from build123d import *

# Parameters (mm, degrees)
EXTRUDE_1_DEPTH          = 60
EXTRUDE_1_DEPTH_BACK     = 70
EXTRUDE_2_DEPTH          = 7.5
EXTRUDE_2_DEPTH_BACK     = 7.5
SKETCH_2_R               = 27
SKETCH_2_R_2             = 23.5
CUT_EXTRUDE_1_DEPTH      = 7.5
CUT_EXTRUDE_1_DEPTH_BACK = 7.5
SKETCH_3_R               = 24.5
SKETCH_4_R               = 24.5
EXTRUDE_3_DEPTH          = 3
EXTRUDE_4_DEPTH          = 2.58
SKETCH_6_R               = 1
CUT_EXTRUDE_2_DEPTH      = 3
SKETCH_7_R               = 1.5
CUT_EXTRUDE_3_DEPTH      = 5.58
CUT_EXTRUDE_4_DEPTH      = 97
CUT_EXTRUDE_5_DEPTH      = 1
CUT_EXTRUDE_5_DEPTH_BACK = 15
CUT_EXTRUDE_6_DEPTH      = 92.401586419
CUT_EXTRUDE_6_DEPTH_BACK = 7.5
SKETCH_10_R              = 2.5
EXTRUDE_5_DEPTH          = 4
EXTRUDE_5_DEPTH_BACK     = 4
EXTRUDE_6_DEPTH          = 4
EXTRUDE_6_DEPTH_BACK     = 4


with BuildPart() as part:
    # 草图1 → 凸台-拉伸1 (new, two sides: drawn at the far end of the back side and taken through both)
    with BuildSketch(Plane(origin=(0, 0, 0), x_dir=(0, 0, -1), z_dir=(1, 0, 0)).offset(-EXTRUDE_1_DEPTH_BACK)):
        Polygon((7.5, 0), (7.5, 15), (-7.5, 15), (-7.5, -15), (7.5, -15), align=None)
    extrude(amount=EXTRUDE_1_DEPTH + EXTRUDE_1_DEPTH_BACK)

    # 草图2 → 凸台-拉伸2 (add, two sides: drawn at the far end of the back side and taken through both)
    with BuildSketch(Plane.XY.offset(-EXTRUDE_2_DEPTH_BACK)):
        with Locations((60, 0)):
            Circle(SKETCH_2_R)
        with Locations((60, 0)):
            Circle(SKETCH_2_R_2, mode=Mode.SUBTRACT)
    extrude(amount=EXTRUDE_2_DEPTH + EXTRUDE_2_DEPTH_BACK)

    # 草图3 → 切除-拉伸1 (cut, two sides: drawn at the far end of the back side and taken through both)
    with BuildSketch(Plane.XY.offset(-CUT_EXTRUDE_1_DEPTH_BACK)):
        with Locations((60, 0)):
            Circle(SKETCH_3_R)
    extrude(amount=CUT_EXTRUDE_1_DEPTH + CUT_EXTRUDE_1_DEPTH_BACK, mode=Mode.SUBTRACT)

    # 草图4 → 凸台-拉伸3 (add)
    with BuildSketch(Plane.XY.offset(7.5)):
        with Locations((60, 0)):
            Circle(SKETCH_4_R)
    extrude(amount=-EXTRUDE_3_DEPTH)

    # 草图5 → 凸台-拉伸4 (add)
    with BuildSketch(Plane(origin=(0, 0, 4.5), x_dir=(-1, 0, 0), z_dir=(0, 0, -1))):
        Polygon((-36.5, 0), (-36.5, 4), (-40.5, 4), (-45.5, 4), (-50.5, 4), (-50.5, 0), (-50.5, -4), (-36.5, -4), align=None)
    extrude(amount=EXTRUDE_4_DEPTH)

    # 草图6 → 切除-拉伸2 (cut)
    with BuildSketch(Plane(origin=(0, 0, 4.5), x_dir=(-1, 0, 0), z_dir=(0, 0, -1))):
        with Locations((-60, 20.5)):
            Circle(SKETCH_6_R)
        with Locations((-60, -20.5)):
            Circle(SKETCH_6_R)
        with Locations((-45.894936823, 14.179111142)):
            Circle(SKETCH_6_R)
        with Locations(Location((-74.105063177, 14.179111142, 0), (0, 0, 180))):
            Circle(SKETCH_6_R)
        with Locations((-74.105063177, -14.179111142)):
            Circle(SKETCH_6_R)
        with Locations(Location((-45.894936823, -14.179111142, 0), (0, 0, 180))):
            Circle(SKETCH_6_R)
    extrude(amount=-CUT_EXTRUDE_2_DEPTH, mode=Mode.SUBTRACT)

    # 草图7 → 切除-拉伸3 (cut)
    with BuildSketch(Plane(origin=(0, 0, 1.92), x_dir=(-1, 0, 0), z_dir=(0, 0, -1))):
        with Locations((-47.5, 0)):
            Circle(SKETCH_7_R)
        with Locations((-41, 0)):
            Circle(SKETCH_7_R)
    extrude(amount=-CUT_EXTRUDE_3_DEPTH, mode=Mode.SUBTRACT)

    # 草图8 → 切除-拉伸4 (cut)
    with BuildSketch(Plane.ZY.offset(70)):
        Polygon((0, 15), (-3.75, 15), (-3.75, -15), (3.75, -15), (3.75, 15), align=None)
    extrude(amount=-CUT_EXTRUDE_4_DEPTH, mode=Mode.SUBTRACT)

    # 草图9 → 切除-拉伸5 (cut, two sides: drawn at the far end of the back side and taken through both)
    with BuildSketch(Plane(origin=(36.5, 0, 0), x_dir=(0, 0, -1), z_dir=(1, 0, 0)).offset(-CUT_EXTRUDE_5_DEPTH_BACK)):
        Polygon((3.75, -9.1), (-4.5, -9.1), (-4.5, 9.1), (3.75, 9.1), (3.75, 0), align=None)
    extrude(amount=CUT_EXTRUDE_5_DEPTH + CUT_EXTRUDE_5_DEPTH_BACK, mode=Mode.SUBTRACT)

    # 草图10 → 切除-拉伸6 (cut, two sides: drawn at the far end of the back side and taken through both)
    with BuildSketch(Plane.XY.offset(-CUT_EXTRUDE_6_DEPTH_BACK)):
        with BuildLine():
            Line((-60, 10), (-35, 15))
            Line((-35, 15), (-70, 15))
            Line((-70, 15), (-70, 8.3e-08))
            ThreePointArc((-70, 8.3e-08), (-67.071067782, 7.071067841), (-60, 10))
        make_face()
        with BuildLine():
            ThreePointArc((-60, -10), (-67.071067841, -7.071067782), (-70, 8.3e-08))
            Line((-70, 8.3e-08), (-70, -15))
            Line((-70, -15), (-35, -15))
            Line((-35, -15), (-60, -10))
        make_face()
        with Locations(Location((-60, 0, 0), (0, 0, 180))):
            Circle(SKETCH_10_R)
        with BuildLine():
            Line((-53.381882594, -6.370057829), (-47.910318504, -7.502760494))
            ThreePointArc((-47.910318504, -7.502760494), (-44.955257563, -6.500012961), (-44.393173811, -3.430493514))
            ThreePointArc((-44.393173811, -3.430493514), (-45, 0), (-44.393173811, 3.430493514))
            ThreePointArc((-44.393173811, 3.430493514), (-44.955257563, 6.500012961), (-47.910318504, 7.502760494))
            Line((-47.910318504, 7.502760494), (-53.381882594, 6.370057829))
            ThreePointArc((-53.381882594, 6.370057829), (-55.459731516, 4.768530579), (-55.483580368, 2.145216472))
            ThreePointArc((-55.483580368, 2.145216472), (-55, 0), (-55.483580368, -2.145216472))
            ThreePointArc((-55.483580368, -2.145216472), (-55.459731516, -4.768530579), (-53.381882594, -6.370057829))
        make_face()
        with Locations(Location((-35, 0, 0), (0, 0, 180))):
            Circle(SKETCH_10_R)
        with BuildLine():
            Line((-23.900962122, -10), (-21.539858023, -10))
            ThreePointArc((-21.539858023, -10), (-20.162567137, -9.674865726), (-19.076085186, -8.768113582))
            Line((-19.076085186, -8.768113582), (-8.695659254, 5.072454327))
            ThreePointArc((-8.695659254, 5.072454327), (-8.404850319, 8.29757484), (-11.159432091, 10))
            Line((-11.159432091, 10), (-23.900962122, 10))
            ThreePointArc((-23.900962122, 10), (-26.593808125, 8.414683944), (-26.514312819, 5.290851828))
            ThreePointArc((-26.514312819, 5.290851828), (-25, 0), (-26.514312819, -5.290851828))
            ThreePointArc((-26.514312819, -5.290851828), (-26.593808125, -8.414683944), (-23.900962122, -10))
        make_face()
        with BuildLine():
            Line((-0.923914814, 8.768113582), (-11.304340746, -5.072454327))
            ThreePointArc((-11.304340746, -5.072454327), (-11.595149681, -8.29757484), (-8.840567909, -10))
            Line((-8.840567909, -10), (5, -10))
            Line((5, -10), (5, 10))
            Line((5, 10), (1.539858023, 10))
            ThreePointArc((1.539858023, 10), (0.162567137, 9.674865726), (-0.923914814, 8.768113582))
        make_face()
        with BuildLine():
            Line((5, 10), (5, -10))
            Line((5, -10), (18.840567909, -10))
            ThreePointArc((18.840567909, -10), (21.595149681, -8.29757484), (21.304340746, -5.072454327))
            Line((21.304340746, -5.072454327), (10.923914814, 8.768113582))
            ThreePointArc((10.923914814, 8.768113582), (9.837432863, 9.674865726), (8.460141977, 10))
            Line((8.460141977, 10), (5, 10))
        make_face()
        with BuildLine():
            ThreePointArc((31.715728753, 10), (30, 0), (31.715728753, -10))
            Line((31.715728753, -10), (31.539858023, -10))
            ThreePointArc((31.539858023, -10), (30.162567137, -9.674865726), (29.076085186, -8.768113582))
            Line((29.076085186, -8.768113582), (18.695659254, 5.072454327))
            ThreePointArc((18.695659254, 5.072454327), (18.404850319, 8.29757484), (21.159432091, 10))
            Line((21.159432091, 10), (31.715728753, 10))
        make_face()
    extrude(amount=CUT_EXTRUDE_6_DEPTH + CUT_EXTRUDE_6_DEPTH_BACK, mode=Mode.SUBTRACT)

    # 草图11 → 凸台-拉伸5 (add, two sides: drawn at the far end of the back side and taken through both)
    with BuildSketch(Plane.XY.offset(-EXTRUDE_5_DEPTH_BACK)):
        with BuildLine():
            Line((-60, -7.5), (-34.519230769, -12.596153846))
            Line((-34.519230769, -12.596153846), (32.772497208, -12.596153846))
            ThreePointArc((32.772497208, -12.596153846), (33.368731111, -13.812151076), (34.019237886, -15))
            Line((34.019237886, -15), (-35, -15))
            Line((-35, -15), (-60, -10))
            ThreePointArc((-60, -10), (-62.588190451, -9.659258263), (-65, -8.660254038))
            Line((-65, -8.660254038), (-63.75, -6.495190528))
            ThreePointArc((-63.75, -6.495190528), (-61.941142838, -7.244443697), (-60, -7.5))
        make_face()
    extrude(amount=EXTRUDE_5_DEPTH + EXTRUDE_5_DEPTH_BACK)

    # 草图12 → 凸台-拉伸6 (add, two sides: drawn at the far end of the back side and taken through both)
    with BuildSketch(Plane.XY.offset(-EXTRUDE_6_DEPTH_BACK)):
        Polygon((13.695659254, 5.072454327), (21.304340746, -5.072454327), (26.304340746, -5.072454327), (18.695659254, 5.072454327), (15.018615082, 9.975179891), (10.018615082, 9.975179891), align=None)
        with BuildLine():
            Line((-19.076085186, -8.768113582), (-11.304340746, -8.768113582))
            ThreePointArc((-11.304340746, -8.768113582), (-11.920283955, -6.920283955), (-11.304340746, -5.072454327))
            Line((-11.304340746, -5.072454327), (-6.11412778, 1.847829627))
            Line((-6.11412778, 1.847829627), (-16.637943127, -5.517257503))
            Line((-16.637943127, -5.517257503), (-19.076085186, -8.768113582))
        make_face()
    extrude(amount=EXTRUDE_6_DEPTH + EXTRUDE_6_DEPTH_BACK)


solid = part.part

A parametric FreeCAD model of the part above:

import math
import FreeCAD as App
import Part
import Sketcher
Q = App.Units.Quantity

doc = App.newDocument("Part")
params = doc.addObject("Spreadsheet::Sheet", "Params")
for row, (alias, value) in enumerate([
    ("sketch1_width", "30 mm"),
    ("sketch1_height", "15 mm"),
    ("pad1_length", "60 mm"),
    ("pad1_length2", "70 mm"),
    ("sketch2_diameter", "54 mm"),
    ("sketch2_diameter2", "47 mm"),
    ("pad2_length", "7.5 mm"),
    ("pad2_length2", "7.5 mm"),
    ("sketch3_diameter", "49 mm"),
    ("sketch4_diameter", "49 mm"),
    ("pad3_length", "3 mm"),
    ("sketch5_width", "14 mm"),
    ("sketch5_height", "8 mm"),
    ("pad4_length", "2.58 mm"),
    ("sketch6_diameter", "2 mm"),
    ("pocket2_length", "3 mm"),
    ("sketch7_diameter", "3 mm"),
    ("pocket3_length", "5.58 mm"),
    ("sketch8_width", "30 mm"),
    ("sketch8_height", "7.5 mm"),
    ("pocket4_length", "97 mm"),
    ("sketch9_width", "18.2 mm"),
    ("sketch9_height", "8.25 mm"),
    ("pocket5_length", "1 mm"),
    ("pocket5_length2", "15 mm"),
    ("sketch10_diameter", "5 mm"),
    ("sketch10_radius", "10 mm"),
    ("sketch10_radius2", "3 mm"),
    ("sketch10_radius3", "5 mm"),
    ("sketch10_radius4", "30 mm"),
    ("sketch11_radius", "10 mm"),
    ("sketch11_radius2", "30 mm"),
    ("sketch11_radius3", "7.5 mm"),
    ("pad5_length", "4 mm"),
    ("pad5_length2", "4 mm"),
    ("sketch12_width", "5 mm"),
    ("pad6_length", "4 mm"),
    ("pad6_length2", "4 mm"),
], start=1):
    params.set(f"A{row}", alias)
    params.set(f"B{row}", "=" + value)
    params.setAlias(f"B{row}", alias)

body = doc.addObject("PartDesign::Body", "Body")

sketch1 = body.newObject("Sketcher::SketchObject", "Sketch")
sketch1.AttachmentSupport = (doc.getObject("YZ_Plane"), [""])
sketch1.MapMode = "FlatFace"
sketch1.addGeometry([
    Part.LineSegment(App.Vector(15, -8, 0), App.Vector(15, 8, 0)),
    Part.LineSegment(App.Vector(15, 8, 0), App.Vector(-15, 8, 0)),
    Part.LineSegment(App.Vector(-15, 8, 0), App.Vector(-15, -8, 0)),
    Part.LineSegment(App.Vector(-15, -8, 0), App.Vector(15, -8, 0)),
], False)
sketch1.addConstraint([
    Sketcher.Constraint("Coincident", 0, 2, 1, 1),
    Sketcher.Constraint("Coincident", 1, 2, 2, 1),
    Sketcher.Constraint("Coincident", 2, 2, 3, 1),
    Sketcher.Constraint("Coincident", 3, 2, 0, 1),
    Sketcher.Constraint("Vertical", 0),
    Sketcher.Constraint("Horizontal", 1),
    Sketcher.Constraint("Vertical", 2),
    Sketcher.Constraint("Horizontal", 3),
    Sketcher.Constraint("Symmetric", 0, 2, 2, 2, -1, 1),
    Sketcher.Constraint("DistanceX", 1, 2, 1, 1, Q("30 mm")),
    Sketcher.Constraint("DistanceY", 0, 1, 0, 2, Q("15 mm")),
])
sketch1.setExpression("Constraints[9]", "Params.sketch1_width")
sketch1.setExpression("Constraints[10]", "Params.sketch1_height")
pad1 = body.newObject("PartDesign::Pad", "Pad")
pad1.Profile = sketch1
pad1.Type = "TwoLengths"
pad1.setExpression("Length", "Params.pad1_length")
pad1.setExpression("Length2", "Params.pad1_length2")

sketch2 = body.newObject("Sketcher::SketchObject", "Sketch001")
sketch2.AttachmentSupport = (doc.getObject("XY_Plane"), [""])
sketch2.MapMode = "FlatFace"
sketch2.addGeometry([
    Part.Circle(App.Vector(60, 0, 0), App.Vector(0, 0, 1), 27),
    Part.Circle(App.Vector(60, 0, 0), App.Vector(0, 0, 1), 24),
], False)
sketch2.addConstraint([
    Sketcher.Constraint("Coincident", 1, 3, 0, 3),
    Sketcher.Constraint("PointOnObject", 0, 3, -1),
    Sketcher.Constraint("Diameter", 0, Q("54 mm")),
    Sketcher.Constraint("Diameter", 1, Q("47 mm")),
    Sketcher.Constraint("DistanceX", -1, 1, 0, 3, Q("60 mm")),
])
sketch2.setExpression("Constraints[2]", "Params.sketch2_diameter")
sketch2.setExpression("Constraints[3]", "Params.sketch2_diameter2")
pad2 = body.newObject("PartDesign::Pad", "Pad001")
pad2.Profile = sketch2
pad2.Type = "TwoLengths"
pad2.setExpression("Length", "Params.pad2_length")
pad2.setExpression("Length2", "Params.pad2_length2")

sketch3 = body.newObject("Sketcher::SketchObject", "Sketch002")
sketch3.AttachmentSupport = (doc.getObject("XY_Plane"), [""])
sketch3.MapMode = "FlatFace"
sketch3.addGeometry(Part.Circle(App.Vector(60, 0, 0), App.Vector(0, 0, 1), 24), False)
sketch3.addConstraint([
    Sketcher.Constraint("PointOnObject", 0, 3, -1),
    Sketcher.Constraint("Diameter", 0, Q("49 mm")),
    Sketcher.Constraint("DistanceX", -1, 1, 0, 3, Q("60 mm")),
])
sketch3.setExpression("Constraints[1]", "Params.sketch3_diameter")
pocket1 = body.newObject("PartDesign::Pocket", "Pocket")
pocket1.Profile = sketch3
pocket1.Type = "ThroughAll"
pocket1.Midplane = True

sketch4 = body.newObject("Sketcher::SketchObject", "Sketch003")
sketch4.AttachmentSupport = (doc.getObject("XY_Plane"), [""])
sketch4.MapMode = "FlatFace"
sketch4.AttachmentOffset = App.Placement(App.Vector(0, 0, 7.5), App.Rotation())
sketch4.addGeometry(Part.Circle(App.Vector(60, 0, 0), App.Vector(0, 0, 1), 24), False)
sketch4.addConstraint([
    Sketcher.Constraint("PointOnObject", 0, 3, -1),
    Sketcher.Constraint("Diameter", 0, Q("49 mm")),
    Sketcher.Constraint("DistanceX", -1, 1, 0, 3, Q("60 mm")),
])
sketch4.setExpression("Constraints[1]", "Params.sketch4_diameter")
pad3 = body.newObject("PartDesign::Pad", "Pad002")
pad3.Profile = sketch4
pad3.setExpression("Length", "Params.pad3_length")
pad3.Reversed = True

sketch5 = body.newObject("Sketcher::SketchObject", "Sketch004")
sketch5.AttachmentSupport = (doc.getObject("XY_Plane"), [""])
sketch5.MapMode = "FlatFace"
sketch5.AttachmentOffset = App.Placement(App.Vector(0, 0, 4.5), App.Rotation())
sketch5.addGeometry([
    Part.LineSegment(App.Vector(36, 4, 0), App.Vector(50, 4, 0)),
    Part.LineSegment(App.Vector(50, 4, 0), App.Vector(50, -4, 0)),
    Part.LineSegment(App.Vector(50, -4, 0), App.Vector(36, -4, 0)),
    Part.LineSegment(App.Vector(36, -4, 0), App.Vector(36, 4, 0)),
], False)
sketch5.addConstraint([
    Sketcher.Constraint("Coincident", 0, 2, 1, 1),
    Sketcher.Constraint("Coincident", 1, 2, 2, 1),
    Sketcher.Constraint("Coincident", 2, 2, 3, 1),
    Sketcher.Constraint("Coincident", 3, 2, 0, 1),
    Sketcher.Constraint("Horizontal", 0),
    Sketcher.Constraint("Vertical", 1),
    Sketcher.Constraint("Horizontal", 2),
    Sketcher.Constraint("Vertical", 3),
    Sketcher.Constraint("DistanceX", 0, 1, 0, 2, Q("14 mm")),
    Sketcher.Constraint("DistanceY", 1, 2, 1, 1, Q("8 mm")),
    Sketcher.Constraint("DistanceY", -1, 1, 0, 2, Q("4 mm")),
    Sketcher.Constraint("DistanceX", -1, 1, 0, 2, Q("50.5 mm")),
])
sketch5.setExpression("Constraints[8]", "Params.sketch5_width")
sketch5.setExpression("Constraints[9]", "Params.sketch5_height")
pad4 = body.newObject("PartDesign::Pad", "Pad003")
pad4.Profile = sketch5
pad4.setExpression("Length", "Params.pad4_length")
pad4.Reversed = True

sketch6 = body.newObject("Sketcher::SketchObject", "Sketch005")
sketch6.AttachmentSupport = (doc.getObject("XY_Plane"), [""])
sketch6.MapMode = "FlatFace"
sketch6.AttachmentOffset = App.Placement(App.Vector(0, 0, 4.5), App.Rotation())
sketch6.addGeometry([
    Part.Circle(App.Vector(60, 20.5, 0), App.Vector(0, 0, 1), 1),
    Part.Circle(App.Vector(60, -20.5, 0), App.Vector(0, 0, 1), 1),
    Part.Circle(App.Vector(45.9, 14.2, 0), App.Vector(0, 0, 1), 1),
    Part.Circle(App.Vector(74.1, 14.2, 0), App.Vector(0, 0, 1), 1),
    Part.Circle(App.Vector(74.1, -14.2, 0), App.Vector(0, 0, 1), 1),
    Part.Circle(App.Vector(45.9, -14.2, 0), App.Vector(0, 0, 1), 1),
], False)
sketch6.addConstraint([
    Sketcher.Constraint("Equal", 0, 1),
    Sketcher.Constraint("Equal", 1, 2),
    Sketcher.Constraint("Equal", 2, 3),
    Sketcher.Constraint("Equal", 3, 4),
    Sketcher.Constraint("Equal", 4, 5),
    Sketcher.Constraint("Symmetric", 0, 3, 1, 3, -1),
    Sketcher.Constraint("Symmetric", 3, 3, 4, 3, -1),
    Sketcher.Constraint("Symmetric", 2, 3, 5, 3, -1),
    Sketcher.Constraint("Horizontal", 2, 3, 3, 3),
    Sketcher.Constraint("Diameter", 0, Q("2 mm")),
    Sketcher.Constraint("DistanceX", -1, 1, 0, 3, Q("60 mm")),
    Sketcher.Constraint("DistanceY", 1, 3, 0, 3, Q("41 mm")),
    Sketcher.Constraint("DistanceY", -1, 1, 2, 3, Q("14.179111 mm")),
    Sketcher.Constraint("DistanceX", -1, 1, 2, 3, Q("45.894937 mm")),
    Sketcher.Constraint("DistanceX", -1, 1, 3, 3, Q("74.105063 mm")),
])
sketch6.setExpression("Constraints[9]", "Params.sketch6_diameter")
pocket2 = body.newObject("PartDesign::Pocket", "Pocket001")
pocket2.Profile = sketch6
pocket2.setExpression("Length", "Params.pocket2_length")
pocket2.Reversed = True

sketch7 = body.newObject("Sketcher::SketchObject", "Sketch006")
sketch7.AttachmentSupport = (doc.getObject("XY_Plane"), [""])
sketch7.MapMode = "FlatFace"
sketch7.AttachmentOffset = App.Placement(App.Vector(0, 0, 1.92), App.Rotation())
sketch7.addGeometry([
    Part.Circle(App.Vector(47.5, 0, 0), App.Vector(0, 0, 1), 1.5),
    Part.Circle(App.Vector(41, 0, 0), App.Vector(0, 0, 1), 1.5),
], False)
sketch7.addConstraint([
    Sketcher.Constraint("Equal", 0, 1),
    Sketcher.Constraint("PointOnObject", 0, 3, -1),
    Sketcher.Constraint("PointOnObject", 1, 3, -1),
    Sketcher.Constraint("Diameter", 0, Q("3 mm")),
    Sketcher.Constraint("DistanceX", -1, 1, 1, 3, Q("41 mm")),
    Sketcher.Constraint("DistanceX", -1, 1, 0, 3, Q("47.5 mm")),
])
sketch7.setExpression("Constraints[3]", "Params.sketch7_diameter")
pocket3 = body.newObject("PartDesign::Pocket", "Pocket002")
pocket3.Profile = sketch7
pocket3.setExpression("Length", "Params.pocket3_length")
pocket3.Reversed = True

sketch8 = body.newObject("Sketcher::SketchObject", "Sketch007")
sketch8.AttachmentSupport = (doc.getObject("YZ_Plane"), [""])
sketch8.MapMode = "FlatFace"
sketch8.AttachmentOffset = App.Placement(App.Vector(0, 0, -70), App.Rotation())
sketch8.addGeometry([
    Part.LineSegment(App.Vector(15, -4, 0), App.Vector(-15, -4, 0)),
    Part.LineSegment(App.Vector(-15, -4, 0), App.Vector(-15, 4, 0)),
    Part.LineSegment(App.Vector(-15, 4, 0), App.Vector(15, 4, 0)),
    Part.LineSegment(App.Vector(15, 4, 0), App.Vector(15, -4, 0)),
], False)
sketch8.addConstraint([
    Sketcher.Constraint("Coincident", 0, 2, 1, 1),
    Sketcher.Constraint("Coincident", 1, 2, 2, 1),
    Sketcher.Constraint("Coincident", 2, 2, 3, 1),
    Sketcher.Constraint("Coincident", 3, 2, 0, 1),
    Sketcher.Constraint("Horizontal", 0),
    Sketcher.Constraint("Vertical", 1),
    Sketcher.Constraint("Horizontal", 2),
    Sketcher.Constraint("Vertical", 3),
    Sketcher.Constraint("Symmetric", 0, 2, 2, 2, -1, 1),
    Sketcher.Constraint("DistanceX", 0, 2, 0, 1, Q("30 mm")),
    Sketcher.Constraint("DistanceY", 1, 1, 1, 2, Q("7.5 mm")),
])
sketch8.setExpression("Constraints[9]", "Params.sketch8_width")
sketch8.setExpression("Constraints[10]", "Params.sketch8_height")
pocket4 = body.newObject("PartDesign::Pocket", "Pocket003")
pocket4.Profile = sketch8
pocket4.setExpression("Length", "Params.pocket4_length")
pocket4.Reversed = True

sketch9 = body.newObject("Sketcher::SketchObject", "Sketch008")
sketch9.AttachmentSupport = (doc.getObject("YZ_Plane"), [""])
sketch9.MapMode = "FlatFace"
sketch9.AttachmentOffset = App.Placement(App.Vector(0, 0, 36.5), App.Rotation())
sketch9.addGeometry([
    Part.LineSegment(App.Vector(-9, 4, 0), App.Vector(-9, -4, 0)),
    Part.LineSegment(App.Vector(-9, -4, 0), App.Vector(9, -4, 0)),
    Part.LineSegment(App.Vector(9, -4, 0), App.Vector(9, 4, 0)),
    Part.LineSegment(App.Vector(9, 4, 0), App.Vector(-9, 4, 0)),
], False)
sketch9.addConstraint([
    Sketcher.Constraint("Coincident", 0, 2, 1, 1),
    Sketcher.Constraint("Coincident", 1, 2, 2, 1),
    Sketcher.Constraint("Coincident", 2, 2, 3, 1),
    Sketcher.Constraint("Coincident", 3, 2, 0, 1),
    Sketcher.Constraint("Vertical", 0),
    Sketcher.Constraint("Horizontal", 1),
    Sketcher.Constraint("Vertical", 2),
    Sketcher.Constraint("Horizontal", 3),
    Sketcher.Constraint("DistanceX", 1, 1, 1, 2, Q("18.2 mm")),
    Sketcher.Constraint("DistanceY", 0, 2, 0, 1, Q("8.25 mm")),
    Sketcher.Constraint("DistanceX", 0, 2, -1, 1, Q("9.1 mm")),
    Sketcher.Constraint("DistanceY", -1, 1, 2, 2, Q("4.5 mm")),
])
sketch9.setExpression("Constraints[8]", "Params.sketch9_width")
sketch9.setExpression("Constraints[9]", "Params.sketch9_height")
pocket5 = body.newObject("PartDesign::Pocket", "Pocket004")
pocket5.Profile = sketch9
pocket5.Type = "TwoLengths"
pocket5.setExpression("Length", "Params.pocket5_length")
pocket5.setExpression("Length2", "Params.pocket5_length2")
pocket5.Reversed = True

sketch10 = body.newObject("Sketcher::SketchObject", "Sketch009")
sketch10.AttachmentSupport = (doc.getObject("XY_Plane"), [""])
sketch10.MapMode = "FlatFace"
sketch10.addGeometry([
    Part.LineSegment(App.Vector(-60, 10, 0), App.Vector(-35, 15, 0)),
    Part.LineSegment(App.Vector(-35, 15, 0), App.Vector(-70, 15, 0)),
    Part.LineSegment(App.Vector(-70, 15, 0), App.Vector(-70, 0, 0)),
    Part.ArcOfCircle(Part.Circle(App.Vector(-60, 0, 0), App.Vector(0, 0, 1), 10), math.radians(90), math.radians(180)),
    Part.ArcOfCircle(Part.Circle(App.Vector(-60, 0, 0), App.Vector(0, 0, 1), 10), math.radians(180), math.radians(270)),
    Part.LineSegment(App.Vector(-70, 0, 0), App.Vector(-70, -15, 0)),
    Part.LineSegment(App.Vector(-70, -15, 0), App.Vector(-35, -15, 0)),
    Part.LineSegment(App.Vector(-35, -15, 0), App.Vector(-60, -10, 0)),
    Part.Circle(App.Vector(-60, 0, 0), App.Vector(0, 0, 1), 2.5),
    Part.LineSegment(App.Vector(-53.38, -6.37, 0), App.Vector(-47.91, -7.5, 0)),
    Part.ArcOfCircle(Part.Circle(App.Vector(-47.29, -4.49, 0), App.Vector(0, 0, 1), 3.08), math.radians(-102), math.radians(20)),
    Part.ArcOfCircle(Part.Circle(App.Vector(-35, 0, 0), App.Vector(0, 0, 1), 10), math.radians(160), math.radians(200)),
    Part.ArcOfCircle(Part.Circle(App.Vector(-47.29, 4.49, 0), App.Vector(0, 0, 1), 3.08), math.radians(-20), math.radians(102)),
    Part.LineSegment(App.Vector(-47.91, 7.5, 0), App.Vector(-53.38, 6.37, 0)),
    Part.ArcOfCircle(Part.Circle(App.Vector(-52.77, 3.43, 0), App.Vector(0, 0, 1), 3), math.radians(102), math.radians(205)),
    Part.ArcOfCircle(Part.Circle(App.Vector(-60, 0, 0), App.Vector(0, 0, 1), 5), math.radians(-25), math.radians(25)),
    Part.ArcOfCircle(Part.Circle(App.Vector(-52.77, -3.43, 0), App.Vector(0, 0, 1), 3), math.radians(155), math.radians(258)),
    Part.Circle(App.Vector(-35, 0, 0), App.Vector(0, 0, 1), 2.5),
    Part.LineSegment(App.Vector(-23.9, -10, 0), App.Vector(-21.54, -10, 0)),
    Part.ArcOfCircle(Part.Circle(App.Vector(-21.54, -6.92, 0), App.Vector(0, 0, 1), 3.08), math.radians(-90), math.radians(-37)),
    Part.LineSegment(App.Vector(-19.08, -8.77, 0), App.Vector(-8.7, 5.07, 0)),
    Part.ArcOfCircle(Part.Circle(App.Vector(-11.16, 6.92, 0), App.Vector(0, 0, 1), 3.08), math.radians(-37), math.radians(90)),
    Part.LineSegment(App.Vector(-11.16, 10, 0), App.Vector(-23.9, 10, 0)),
    Part.ArcOfCircle(Part.Circle(App.Vector(-23.9, 6.92, 0), App.Vector(0, 0, 1), 3.08), math.radians(90), math.radians(212)),
    Part.ArcOfCircle(Part.Circle(App.Vector(-35, 0, 0), App.Vector(0, 0, 1), 10), math.radians(-32), math.radians(32)),
    Part.ArcOfCircle(Part.Circle(App.Vector(-23.9, -6.92, 0), App.Vector(0, 0, 1), 3.08), math.radians(148), math.radians(270)),
    Part.LineSegment(App.Vector(-0.92, 8.77, 0), App.Vector(-11.3, -5.07, 0)),
    Part.ArcOfCircle(Part.Circle(App.Vector(-8.84, -6.92, 0), App.Vector(0, 0, 1), 3.08), math.radians(143), math.radians(270)),
    Part.LineSegment(App.Vector(-8.84, -10, 0), App.Vector(18.84, -10, 0)),
    Part.ArcOfCircle(Part.Circle(App.Vector(18.84, -6.92, 0), App.Vector(0, 0, 1), 3.08), math.radians(-90), math.radians(37)),
    Part.LineSegment(App.Vector(21.3, -5.07, 0), App.Vector(10.92, 8.77, 0)),
    Part.ArcOfCircle(Part.Circle(App.Vector(8.46, 6.92, 0), App.Vector(0, 0, 1), 3.08), math.radians(37), math.radians(90)),
    Part.LineSegment(App.Vector(8.46, 10, 0), App.Vector(1.54, 10, 0)),
    Part.ArcOfCircle(Part.Circle(App.Vector(1.54, 6.92, 0), App.Vector(0, 0, 1), 3.08), math.radians(90), math.radians(143)),
    Part.ArcOfCircle(Part.Circle(App.Vector(60, 0, 0), App.Vector(0, 0, 1), 30), math.radians(161), math.radians(199)),
    Part.LineSegment(App.Vector(31.72, 10, 0), App.Vector(21.16, 10, 0)),
    Part.ArcOfCircle(Part.Circle(App.Vector(21.16, 6.92, 0), App.Vector(0, 0, 1), 3.08), math.radians(90), math.radians(217)),
    Part.LineSegment(App.Vector(18.7, 5.07, 0), App.Vector(29.08, -8.77, 0)),
    Part.ArcOfCircle(Part.Circle(App.Vector(31.54, -6.92, 0), App.Vector(0, 0, 1), 3.08), math.radians(-143), math.radians(-90)),
    Part.LineSegment(App.Vector(31.54, -10, 0), App.Vector(31.72, -10, 0)),
], False)
sketch10.addConstraint([
    Sketcher.Constraint("Coincident", 0, 2, 1, 1),
    Sketcher.Constraint("Coincident", 1, 2, 2, 1),
    Sketcher.Constraint("Tangent", 2, 2, 3, 2),
    Sketcher.Constraint("Coincident", 3, 1, 0, 1),
    Sketcher.Constraint("Tangent", 4, 1, 5, 1),
    Sketcher.Constraint("Coincident", 5, 2, 6, 1),
    Sketcher.Constraint("Coincident", 6, 2, 7, 1),
    Sketcher.Constraint("Coincident", 7, 2, 4, 2),
    Sketcher.Constraint("Tangent", 9, 2, 10, 1),
    Sketcher.Constraint("Tangent", 10, 2, 11, 2),
    Sketcher.Constraint("Tangent", 11, 1, 12, 1),
    Sketcher.Constraint("Tangent", 12, 2, 13, 1),
    Sketcher.Constraint("Tangent", 13, 2, 14, 1),
    Sketcher.Constraint("Tangent", 14, 2, 15, 2),
    Sketcher.Constraint("Tangent", 15, 1, 16, 1),
    Sketcher.Constraint("Tangent", 16, 2, 9, 1),
    Sketcher.Constraint("Tangent", 18, 2, 19, 1),
    Sketcher.Constraint("Tangent", 19, 2, 20, 1),
    Sketcher.Constraint("Tangent", 20, 2, 21, 1),
    Sketcher.Constraint("Tangent", 21, 2, 22, 1),
    Sketcher.Constraint("Tangent", 22, 2, 23, 1),
    Sketcher.Constraint("Tangent", 23, 2, 24, 2),
    Sketcher.Constraint("Tangent", 24, 1, 25, 1),
    Sketcher.Constraint("Tangent", 25, 2, 18, 1),
    Sketcher.Constraint("Tangent", 26, 2, 27, 1),
    Sketcher.Constraint("Tangent", 27, 2, 28, 1),
    Sketcher.Constraint("Tangent", 28, 2, 29, 1),
    Sketcher.Constraint("Tangent", 29, 2, 30, 1),
    Sketcher.Constraint("Tangent", 30, 2, 31, 1),
    Sketcher.Constraint("Tangent", 31, 2, 32, 1),
    Sketcher.Constraint("Tangent", 32, 2, 33, 1),
    Sketcher.Constraint("Tangent", 33, 2, 26, 1),
    Sketcher.Constraint("Coincident", 34, 1, 35, 1),
    Sketcher.Constraint("Tangent", 35, 2, 36, 1),
    Sketcher.Constraint("Tangent", 36, 2, 37, 1),
    Sketcher.Constraint("Tangent", 37, 2, 38, 1),
    Sketcher.Constraint("Tangent", 38, 2, 39, 1),
    Sketcher.Constraint("Coincident", 39, 2, 34, 2),
    Sketcher.Constraint("Horizontal", 1),
    Sketcher.Constraint("Vertical", 2),
    Sketcher.Constraint("Vertical", 5),
    Sketcher.Constraint("Horizontal", 6),
    Sketcher.Constraint("Horizontal", 18),
    Sketcher.Constraint("Horizontal", 22),
    Sketcher.Constraint("Horizontal", 28),
    Sketcher.Constraint("Horizontal", 32),
    Sketcher.Constraint("Horizontal", 35),
    Sketcher.Constraint("Horizontal", 39),
    Sketcher.Constraint("Coincident", 4, 3, 3, 3),
    Sketcher.Constraint("Coincident", 8, 3, 3, 3),
    Sketcher.Constraint("Coincident", 15, 3, 3, 3),
    Sketcher.Constraint("Coincident", 17, 3, 11, 3),
    Sketcher.Constraint("Coincident", 24, 3, 11, 3),
    Sketcher.Constraint("Equal", 3, 4),
    Sketcher.Constraint("Equal", 4, 11),
    Sketcher.Constraint("Equal", 10, 12),
    Sketcher.Constraint("Equal", 14, 16),
    Sketcher.Constraint("Equal", 8, 17),
    Sketcher.Constraint("Equal", 12, 19),
    Sketcher.Constraint("Equal", 19, 21),
    Sketcher.Constraint("Equal", 21, 23),
    Sketcher.Constraint("Equal", 11, 24),
    Sketcher.Constraint("Equal", 23, 25),
    Sketcher.Constraint("Equal", 25, 27),
    Sketcher.Constraint("Equal", 27, 29),
    Sketcher.Constraint("Equal", 29, 31),
    Sketcher.Constraint("Equal", 31, 33),
    Sketcher.Constraint("Equal", 33, 36),
    Sketcher.Constraint("Equal", 36, 38),
    Sketcher.Constraint("Symmetric", 3, 3, 34, 3, -1, 1),
    Sketcher.Constraint("Symmetric", 10, 3, 12, 3, -1),
    Sketcher.Constraint("Symmetric", 14, 3, 16, 3, -1),
    Sketcher.Constraint("Symmetric", 0, 2, 6, 2, -1),
    Sketcher.Constraint("Parallel", 20, 26),
    Sketcher.Constraint("Parallel", 30, 37),
    Sketcher.Constraint("Horizontal", 25, 3, 27, 3),
    Sketcher.Constraint("Horizontal", 23, 3, 31, 3),
    Sketcher.Constraint("Horizontal", 33, 3, 36, 3),
    Sketcher.Constraint("Horizontal", 29, 3, 38, 3),
    Sketcher.Constraint("Horizontal", 7, 2, 18, 2),
    Sketcher.Constraint("Horizontal", 3, 1, 21, 2),
    Sketcher.Constraint("Horizontal", 26, 2, 29, 2),
    Sketcher.Constraint("Vertical", 24, 3, 0, 2),
    Sketcher.Constraint("Vertical", 15, 3, 3, 1),
    Sketcher.Constraint("Vertical", 3, 1, 7, 2),
    Sketcher.Constraint("Diameter", 8, Q("5 mm")),
    Sketcher.Constraint("Radius", 3, Q("10 mm")),
    Sketcher.Constraint("Radius", 14, Q("3 mm")),
    Sketcher.Constraint("Radius", 15, Q("5 mm")),
    Sketcher.Constraint("Radius", 34, Q("30 mm")),
    Sketcher.Constraint("DistanceX", 1, 2, 1, 1, Q("35 mm")),
    Sketcher.Constraint("DistanceY", 2, 2, 2, 1, Q("15 mm")),
    Sketcher.Constraint("DistanceX", 3, 3, -1, 1, Q("60 mm")),
    Sketcher.Constraint("DistanceX", 21, 3, 29, 3, Q("30 mm")),
    Sketcher.Constraint("DistanceX", 27, 3, 36, 3, Q("30 mm")),
    Sketcher.Constraint("Radius", 10, Q("3.079716 mm")),
    Sketcher.Constraint("DistanceX", 22, 2, 22, 1, Q("12.74153 mm")),
    Sketcher.Constraint("DistanceX", 39, 1, 39, 2, Q("0.175871 mm")),
    Sketcher.Constraint("DistanceX", 20, 2, 31, 3, Q("17.155801 mm")),
    Sketcher.Constraint("Distance", 9, Q("5.587578 mm")),
    Sketcher.Constraint("DistanceY", 10, 3, -1, 1, Q("4.486988 mm")),
])
sketch10.setExpression("Constraints[85]", "Params.sketch10_diameter")
sketch10.setExpression("Constraints[86]", "Params.sketch10_radius")
sketch10.setExpression("Constraints[87]", "Params.sketch10_radius2")
sketch10.setExpression("Constraints[88]", "Params.sketch10_radius3")
sketch10.setExpression("Constraints[89]", "Params.sketch10_radius4")
pocket6 = body.newObject("PartDesign::Pocket", "Pocket005")
pocket6.Profile = sketch10
pocket6.Type = "ThroughAll"
pocket6.Midplane = True

sketch11 = body.newObject("Sketcher::SketchObject", "Sketch010")
sketch11.AttachmentSupport = (doc.getObject("XY_Plane"), [""])
sketch11.MapMode = "FlatFace"
sketch11.addGeometry([
    Part.LineSegment(App.Vector(-34.5, -12.6, 0), App.Vector(-60, -7.5, 0)),
    Part.ArcOfCircle(Part.Circle(App.Vector(-60, 0, 0), App.Vector(0, 0, 1), 7.5), math.radians(-120), math.radians(-90)),
    Part.LineSegment(App.Vector(-63.8, -6.5, 0), App.Vector(-65, -8.7, 0)),
    Part.ArcOfCircle(Part.Circle(App.Vector(-60, 0, 0), App.Vector(0, 0, 1), 10), math.radians(-120), math.radians(-90)),
    Part.LineSegment(App.Vector(-60, -10, 0), App.Vector(-35, -15, 0)),
    Part.LineSegment(App.Vector(-35, -15, 0), App.Vector(34, -15, 0)),
    Part.ArcOfCircle(Part.Circle(App.Vector(60, 0, 0), App.Vector(0, 0, 1), 30), math.radians(-155.17), math.radians(-150)),
    Part.LineSegment(App.Vector(32.8, -12.6, 0), App.Vector(-34.5, -12.6, 0)),
], False)
sketch11.addConstraint([
    Sketcher.Constraint("Coincident", 0, 2, 1, 2),
    Sketcher.Constraint("Coincident", 1, 1, 2, 1),
    Sketcher.Constraint("Coincident", 2, 2, 3, 1),
    Sketcher.Constraint("Coincident", 3, 2, 4, 1),
    Sketcher.Constraint("Coincident", 4, 2, 5, 1),
    Sketcher.Constraint("Coincident", 5, 2, 6, 2),
    Sketcher.Constraint("Coincident", 6, 1, 7, 1),
    Sketcher.Constraint("Coincident", 7, 2, 0, 1),
    Sketcher.Constraint("Horizontal", 5),
    Sketcher.Constraint("Horizontal", 7),
    Sketcher.Constraint("Coincident", 3, 3, 1, 3),
    Sketcher.Constraint("Symmetric", 1, 3, 6, 3, -1, 1),
    Sketcher.Constraint("PointOnObject", 1, 3, -1),
    Sketcher.Constraint("Parallel", 0, 4),
    Sketcher.Constraint("Vertical", 3, 3, 0, 2),
    Sketcher.Constraint("Vertical", 0, 2, 3, 2),
    Sketcher.Constraint("Radius", 3, Q("10 mm")),
    Sketcher.Constraint("Radius", 6, Q("30 mm")),
    Sketcher.Constraint("Radius", 1, Q("7.5 mm")),
    Sketcher.Constraint("Angle", 2, Q("-120 deg")),
    Sketcher.Constraint("DistanceX", 1, 3, -1, 1, Q("60 mm")),
    Sketcher.Constraint("DistanceX", 2, 2, -1, 1, Q("65 mm")),
    Sketcher.Constraint("DistanceX", 4, 2, -1, 1, Q("35 mm")),
    Sketcher.Constraint("DistanceY", 4, 2, -1, 1, Q("15 mm")),
    Sketcher.Constraint("DistanceX", 7, 2, 7, 1, Q("67.291728 mm")),
])
sketch11.setExpression("Constraints[16]", "Params.sketch11_radius")
sketch11.setExpression("Constraints[17]", "Params.sketch11_radius2")
sketch11.setExpression("Constraints[18]", "Params.sketch11_radius3")
pad5 = body.newObject("PartDesign::Pad", "Pad004")
pad5.Profile = sketch11
pad5.Type = "TwoLengths"
pad5.setExpression("Length", "Params.pad5_length")
pad5.setExpression("Length2", "Params.pad5_length2")

sketch12 = body.newObject("Sketcher::SketchObject", "Sketch011")
sketch12.AttachmentSupport = (doc.getObject("XY_Plane"), [""])
sketch12.MapMode = "FlatFace"
sketch12.addGeometry([
    Part.LineSegment(App.Vector(13.7, 5.1, 0), App.Vector(21.3, -5.1, 0)),
    Part.LineSegment(App.Vector(21.3, -5.1, 0), App.Vector(26.3, -5.1, 0)),
    Part.LineSegment(App.Vector(26.3, -5.1, 0), App.Vector(18.7, 5.1, 0)),
    Part.LineSegment(App.Vector(18.7, 5.1, 0), App.Vector(15, 10, 0)),
    Part.LineSegment(App.Vector(15, 10, 0), App.Vector(10, 10, 0)),
    Part.LineSegment(App.Vector(10, 10, 0), App.Vector(13.7, 5.1, 0)),
    Part.LineSegment(App.Vector(-19.1, -8.8, 0), App.Vector(-11.3, -8.8, 0)),
    Part.ArcOfCircle(Part.Circle(App.Vector(-8.8, -6.9, 0), App.Vector(0, 0, 1), 3.1), math.radians(143), math.radians(217)),
    Part.LineSegment(App.Vector(-11.3, -5.1, 0), App.Vector(-6.1, 1.8, 0)),
    Part.LineSegment(App.Vector(-6.1, 1.8, 0), App.Vector(-16.6, -5.5, 0)),
    Part.LineSegment(App.Vector(-16.6, -5.5, 0), App.Vector(-19.1, -8.8, 0)),
], False)
sketch12.addConstraint([
    Sketcher.Constraint("Coincident", 0, 2, 1, 1),
    Sketcher.Constraint("Coincident", 1, 2, 2, 1),
    Sketcher.Constraint("Coincident", 2, 2, 3, 1),
    Sketcher.Constraint("Coincident", 3, 2, 4, 1),
    Sketcher.Constraint("Coincident", 4, 2, 5, 1),
    Sketcher.Constraint("Coincident", 5, 2, 0, 1),
    Sketcher.Constraint("Coincident", 6, 2, 7, 2),
    Sketcher.Constraint("Tangent", 7, 1, 8, 1),
    Sketcher.Constraint("Coincident", 8, 2, 9, 1),
    Sketcher.Constraint("Coincident", 9, 2, 10, 1),
    Sketcher.Constraint("Coincident", 10, 2, 6, 1),
    Sketcher.Constraint("Horizontal", 1),
    Sketcher.Constraint("Horizontal", 4),
    Sketcher.Constraint("Horizontal", 6),
    Sketcher.Constraint("Parallel", 0, 2),
    Sketcher.Constraint("Parallel", 2, 3),
    Sketcher.Constraint("Parallel", 3, 5),
    Sketcher.Constraint("Parallel", 8, 10),
    Sketcher.Constraint("Horizontal", 2, 2, 5, 2),
    Sketcher.Constraint("Horizontal", 1, 2, 7, 1),
    Sketcher.Constraint("Vertical", 6, 2, 7, 1),
    Sketcher.Constraint("DistanceX", 1, 1, 1, 2, Q("5 mm")),
    Sketcher.Constraint("DistanceX", 6, 2, 5, 2, Q("25 mm")),
    Sketcher.Constraint("Radius", 7, Q("3.079716 mm")),
    Sketcher.Constraint("Distance", 10, Q("4.06357 mm")),
    Sketcher.Constraint("DistanceX", 6, 1, 6, 2, Q("7.771744 mm")),
    Sketcher.Constraint("DistanceX", -1, 1, 0, 2, Q("21.304341 mm")),
    Sketcher.Constraint("DistanceX", -1, 1, 2, 2, Q("18.695659 mm")),
    Sketcher.Constraint("DistanceY", -1, 1, 3, 2, Q("9.97518 mm")),
    Sketcher.Constraint("DistanceY", -1, 1, 8, 2, Q("1.84783 mm")),
    Sketcher.Constraint("DistanceX", 7, 3, 0, 2, Q("30.144909 mm")),
    Sketcher.Constraint("DistanceY", 0, 2, 2, 2, Q("10.144909 mm")),
    Sketcher.Constraint("DistanceX", 7, 3, 8, 2, Q("2.72644 mm")),
])
sketch12.setExpression("Constraints[21]", "Params.sketch12_width")
pad6 = body.newObject("PartDesign::Pad", "Pad005")
pad6.Profile = sketch12
pad6.Type = "TwoLengths"
pad6.setExpression("Length", "Params.pad6_length")
pad6.setExpression("Length2", "Params.pad6_length2")

doc.recompute()
